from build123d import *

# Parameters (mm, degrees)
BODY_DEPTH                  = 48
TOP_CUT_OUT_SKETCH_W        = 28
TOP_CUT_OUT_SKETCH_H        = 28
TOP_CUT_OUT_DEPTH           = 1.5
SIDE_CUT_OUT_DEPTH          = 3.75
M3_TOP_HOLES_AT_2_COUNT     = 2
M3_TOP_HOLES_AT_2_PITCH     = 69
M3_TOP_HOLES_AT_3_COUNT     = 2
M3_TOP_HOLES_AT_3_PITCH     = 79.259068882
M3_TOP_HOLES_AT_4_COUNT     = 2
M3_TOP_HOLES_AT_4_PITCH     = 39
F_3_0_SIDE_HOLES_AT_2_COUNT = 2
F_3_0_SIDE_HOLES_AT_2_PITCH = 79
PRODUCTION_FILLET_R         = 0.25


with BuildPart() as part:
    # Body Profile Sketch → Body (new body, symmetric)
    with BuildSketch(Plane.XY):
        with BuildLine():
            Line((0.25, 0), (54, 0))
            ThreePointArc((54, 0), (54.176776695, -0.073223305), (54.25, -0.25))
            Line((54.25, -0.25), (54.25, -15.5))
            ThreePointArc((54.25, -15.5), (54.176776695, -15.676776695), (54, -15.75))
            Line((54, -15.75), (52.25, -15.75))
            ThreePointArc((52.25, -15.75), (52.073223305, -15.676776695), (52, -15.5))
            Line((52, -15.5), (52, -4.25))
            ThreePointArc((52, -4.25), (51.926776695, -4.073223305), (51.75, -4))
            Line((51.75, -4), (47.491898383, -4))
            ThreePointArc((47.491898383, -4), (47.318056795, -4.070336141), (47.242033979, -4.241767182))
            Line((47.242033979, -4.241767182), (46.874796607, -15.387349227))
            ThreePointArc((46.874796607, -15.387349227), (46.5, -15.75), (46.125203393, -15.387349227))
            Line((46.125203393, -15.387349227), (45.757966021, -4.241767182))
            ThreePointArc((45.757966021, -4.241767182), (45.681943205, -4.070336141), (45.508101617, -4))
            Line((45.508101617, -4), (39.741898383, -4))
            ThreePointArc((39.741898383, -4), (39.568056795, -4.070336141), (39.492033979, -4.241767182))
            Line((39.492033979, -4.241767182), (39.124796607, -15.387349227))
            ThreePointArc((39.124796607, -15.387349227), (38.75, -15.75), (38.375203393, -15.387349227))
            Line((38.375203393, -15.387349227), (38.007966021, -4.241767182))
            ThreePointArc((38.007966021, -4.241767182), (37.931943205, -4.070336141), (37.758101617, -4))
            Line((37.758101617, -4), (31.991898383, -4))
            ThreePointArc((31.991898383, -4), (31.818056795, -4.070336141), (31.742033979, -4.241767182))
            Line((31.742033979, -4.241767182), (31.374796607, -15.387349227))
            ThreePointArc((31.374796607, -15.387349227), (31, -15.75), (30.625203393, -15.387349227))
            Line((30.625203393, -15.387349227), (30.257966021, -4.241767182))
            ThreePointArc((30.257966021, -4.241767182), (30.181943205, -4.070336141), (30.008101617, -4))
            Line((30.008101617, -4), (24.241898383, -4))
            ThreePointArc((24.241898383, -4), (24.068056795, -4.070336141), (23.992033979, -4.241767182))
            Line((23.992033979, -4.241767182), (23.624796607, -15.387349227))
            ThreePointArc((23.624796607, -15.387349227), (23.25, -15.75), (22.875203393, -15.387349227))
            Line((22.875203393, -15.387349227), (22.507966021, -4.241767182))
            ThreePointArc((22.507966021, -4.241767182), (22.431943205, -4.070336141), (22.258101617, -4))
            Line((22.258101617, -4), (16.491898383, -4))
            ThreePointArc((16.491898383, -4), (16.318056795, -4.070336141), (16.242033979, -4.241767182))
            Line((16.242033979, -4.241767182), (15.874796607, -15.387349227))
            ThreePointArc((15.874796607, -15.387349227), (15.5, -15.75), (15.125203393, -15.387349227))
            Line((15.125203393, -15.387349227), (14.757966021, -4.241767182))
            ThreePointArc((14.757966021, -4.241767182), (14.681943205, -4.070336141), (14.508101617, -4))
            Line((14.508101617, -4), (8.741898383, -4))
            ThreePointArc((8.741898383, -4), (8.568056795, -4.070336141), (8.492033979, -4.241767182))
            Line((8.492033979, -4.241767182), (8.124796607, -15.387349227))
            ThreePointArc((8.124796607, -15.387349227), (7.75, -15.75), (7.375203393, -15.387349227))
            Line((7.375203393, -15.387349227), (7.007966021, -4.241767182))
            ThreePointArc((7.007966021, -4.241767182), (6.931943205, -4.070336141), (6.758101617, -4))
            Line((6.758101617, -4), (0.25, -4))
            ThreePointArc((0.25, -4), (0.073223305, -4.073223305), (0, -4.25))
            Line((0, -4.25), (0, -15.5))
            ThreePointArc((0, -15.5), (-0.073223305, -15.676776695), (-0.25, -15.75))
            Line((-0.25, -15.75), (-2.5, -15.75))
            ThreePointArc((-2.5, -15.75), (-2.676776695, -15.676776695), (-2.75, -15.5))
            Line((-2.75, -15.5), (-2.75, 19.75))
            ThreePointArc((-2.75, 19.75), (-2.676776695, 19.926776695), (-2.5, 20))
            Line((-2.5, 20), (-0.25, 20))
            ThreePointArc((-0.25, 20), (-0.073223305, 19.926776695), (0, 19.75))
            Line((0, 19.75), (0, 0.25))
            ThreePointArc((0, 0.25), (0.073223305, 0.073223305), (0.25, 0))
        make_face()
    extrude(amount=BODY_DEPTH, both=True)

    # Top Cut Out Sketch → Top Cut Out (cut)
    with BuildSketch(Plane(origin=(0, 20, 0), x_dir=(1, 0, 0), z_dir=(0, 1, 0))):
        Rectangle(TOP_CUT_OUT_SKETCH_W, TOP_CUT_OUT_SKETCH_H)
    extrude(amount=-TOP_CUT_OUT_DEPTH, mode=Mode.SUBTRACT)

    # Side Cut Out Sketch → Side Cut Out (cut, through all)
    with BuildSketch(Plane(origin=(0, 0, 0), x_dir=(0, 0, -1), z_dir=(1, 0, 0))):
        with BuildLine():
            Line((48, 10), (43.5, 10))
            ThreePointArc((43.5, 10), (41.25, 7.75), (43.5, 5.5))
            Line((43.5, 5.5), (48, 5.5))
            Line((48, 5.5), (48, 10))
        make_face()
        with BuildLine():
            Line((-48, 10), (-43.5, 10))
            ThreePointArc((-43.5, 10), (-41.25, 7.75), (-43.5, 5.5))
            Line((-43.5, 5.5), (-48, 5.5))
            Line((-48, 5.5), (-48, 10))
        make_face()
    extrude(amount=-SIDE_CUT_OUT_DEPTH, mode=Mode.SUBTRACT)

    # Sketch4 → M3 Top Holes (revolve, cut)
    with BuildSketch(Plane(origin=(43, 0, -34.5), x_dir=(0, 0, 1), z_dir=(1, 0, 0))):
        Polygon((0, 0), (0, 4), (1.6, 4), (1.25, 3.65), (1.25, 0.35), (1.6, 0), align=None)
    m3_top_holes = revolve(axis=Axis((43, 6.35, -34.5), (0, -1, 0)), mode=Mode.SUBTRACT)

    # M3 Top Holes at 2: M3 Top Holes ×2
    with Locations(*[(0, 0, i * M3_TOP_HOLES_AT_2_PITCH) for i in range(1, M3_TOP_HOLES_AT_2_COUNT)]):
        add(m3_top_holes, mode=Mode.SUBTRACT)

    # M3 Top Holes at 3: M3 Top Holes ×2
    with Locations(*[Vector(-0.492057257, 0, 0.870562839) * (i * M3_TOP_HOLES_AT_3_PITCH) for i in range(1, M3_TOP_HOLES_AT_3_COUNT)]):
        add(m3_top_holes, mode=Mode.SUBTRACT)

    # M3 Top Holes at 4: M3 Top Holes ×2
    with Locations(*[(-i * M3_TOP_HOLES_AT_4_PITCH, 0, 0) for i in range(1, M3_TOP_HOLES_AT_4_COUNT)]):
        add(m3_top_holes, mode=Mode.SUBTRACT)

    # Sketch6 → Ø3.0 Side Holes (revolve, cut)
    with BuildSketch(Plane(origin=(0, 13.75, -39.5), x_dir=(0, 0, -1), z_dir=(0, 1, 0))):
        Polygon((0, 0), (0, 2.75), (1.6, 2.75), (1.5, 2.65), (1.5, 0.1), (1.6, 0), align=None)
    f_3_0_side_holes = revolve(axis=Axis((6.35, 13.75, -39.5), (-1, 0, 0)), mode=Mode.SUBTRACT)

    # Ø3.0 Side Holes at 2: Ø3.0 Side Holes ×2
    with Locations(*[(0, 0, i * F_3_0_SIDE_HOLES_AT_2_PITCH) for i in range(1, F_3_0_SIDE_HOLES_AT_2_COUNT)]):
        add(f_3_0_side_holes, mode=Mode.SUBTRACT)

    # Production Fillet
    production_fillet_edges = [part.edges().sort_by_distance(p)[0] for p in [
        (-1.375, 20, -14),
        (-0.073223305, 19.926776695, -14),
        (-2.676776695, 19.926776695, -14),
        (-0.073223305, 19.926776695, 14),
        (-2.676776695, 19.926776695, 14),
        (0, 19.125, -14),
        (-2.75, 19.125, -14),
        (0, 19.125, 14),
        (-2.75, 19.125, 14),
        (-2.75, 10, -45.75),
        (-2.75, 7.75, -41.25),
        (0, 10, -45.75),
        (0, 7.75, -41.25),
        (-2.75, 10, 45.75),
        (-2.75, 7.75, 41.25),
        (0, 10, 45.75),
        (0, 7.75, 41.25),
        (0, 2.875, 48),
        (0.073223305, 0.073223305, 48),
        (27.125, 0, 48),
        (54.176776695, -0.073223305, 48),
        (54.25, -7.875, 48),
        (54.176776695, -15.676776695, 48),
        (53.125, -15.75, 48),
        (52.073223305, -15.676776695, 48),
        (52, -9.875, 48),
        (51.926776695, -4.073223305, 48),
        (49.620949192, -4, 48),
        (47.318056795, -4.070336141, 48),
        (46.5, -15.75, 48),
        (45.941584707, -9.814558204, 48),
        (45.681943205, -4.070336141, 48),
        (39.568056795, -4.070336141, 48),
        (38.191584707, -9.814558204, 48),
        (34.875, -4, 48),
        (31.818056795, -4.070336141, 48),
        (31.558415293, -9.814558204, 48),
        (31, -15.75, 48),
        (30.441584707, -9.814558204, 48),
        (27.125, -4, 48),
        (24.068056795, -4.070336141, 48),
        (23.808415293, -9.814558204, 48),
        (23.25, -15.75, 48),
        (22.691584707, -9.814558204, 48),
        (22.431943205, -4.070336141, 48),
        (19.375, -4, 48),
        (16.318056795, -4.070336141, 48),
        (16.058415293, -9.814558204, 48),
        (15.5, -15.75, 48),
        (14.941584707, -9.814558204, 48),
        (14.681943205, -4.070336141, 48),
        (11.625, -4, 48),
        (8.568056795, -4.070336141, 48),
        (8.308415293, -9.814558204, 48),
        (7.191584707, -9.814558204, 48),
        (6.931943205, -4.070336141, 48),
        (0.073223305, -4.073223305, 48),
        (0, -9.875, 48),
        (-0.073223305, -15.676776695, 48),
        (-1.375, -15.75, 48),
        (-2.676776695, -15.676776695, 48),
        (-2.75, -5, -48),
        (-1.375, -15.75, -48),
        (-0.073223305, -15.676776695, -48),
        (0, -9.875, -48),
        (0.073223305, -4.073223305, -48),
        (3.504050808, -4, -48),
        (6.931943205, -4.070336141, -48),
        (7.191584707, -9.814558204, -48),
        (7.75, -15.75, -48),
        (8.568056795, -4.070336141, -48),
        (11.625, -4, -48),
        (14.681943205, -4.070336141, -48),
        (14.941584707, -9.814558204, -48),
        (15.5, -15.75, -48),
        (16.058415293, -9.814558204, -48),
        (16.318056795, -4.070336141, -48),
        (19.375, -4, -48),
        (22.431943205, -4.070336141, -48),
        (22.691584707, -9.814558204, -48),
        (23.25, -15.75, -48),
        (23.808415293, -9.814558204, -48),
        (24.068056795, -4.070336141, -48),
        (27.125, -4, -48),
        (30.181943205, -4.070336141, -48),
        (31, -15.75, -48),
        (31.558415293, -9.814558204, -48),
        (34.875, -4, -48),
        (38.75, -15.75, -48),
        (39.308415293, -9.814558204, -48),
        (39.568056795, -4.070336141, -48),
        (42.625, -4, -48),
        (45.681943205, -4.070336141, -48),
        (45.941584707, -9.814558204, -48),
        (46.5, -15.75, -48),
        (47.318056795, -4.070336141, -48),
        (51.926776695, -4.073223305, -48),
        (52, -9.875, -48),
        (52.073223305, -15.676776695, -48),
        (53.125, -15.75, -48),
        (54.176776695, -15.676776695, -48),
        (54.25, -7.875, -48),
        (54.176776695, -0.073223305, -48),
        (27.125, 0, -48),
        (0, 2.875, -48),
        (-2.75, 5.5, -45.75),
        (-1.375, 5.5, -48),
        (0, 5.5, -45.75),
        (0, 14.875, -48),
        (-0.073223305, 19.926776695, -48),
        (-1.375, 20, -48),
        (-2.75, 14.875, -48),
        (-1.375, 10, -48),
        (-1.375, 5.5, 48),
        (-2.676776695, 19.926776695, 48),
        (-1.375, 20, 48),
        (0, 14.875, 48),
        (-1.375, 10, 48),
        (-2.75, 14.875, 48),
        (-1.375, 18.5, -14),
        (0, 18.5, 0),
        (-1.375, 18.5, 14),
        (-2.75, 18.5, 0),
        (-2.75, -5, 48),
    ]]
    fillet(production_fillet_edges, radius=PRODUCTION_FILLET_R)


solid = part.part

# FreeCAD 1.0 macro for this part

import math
import FreeCAD as App
import Part
import Sketcher


def edges_at(feature, points):
    """Names of the edges that pass closest to the given points."""
    edges = feature.Shape.Edges
    near = lambda p: min(range(len(edges)), key=lambda i: edges[i].distToShape(Part.Vertex(*p))[0])
    return sorted({f"Edge{near(p) + 1}" for p in points})


def add_polygon(sketch, points):
    """Adds a closed chain of lines whose ends are joined by coincident constraints."""
    first, n = sketch.GeometryCount, len(points)
    for a, b in zip(points, points[1:] + points[:1]):
        sketch.addGeometry(Part.LineSegment(App.Vector(*a, 0), App.Vector(*b, 0)), False)
    for i in range(n):
        sketch.addConstraint(Sketcher.Constraint("Coincident", first + i, 2, first + (i + 1) % n, 1))

doc = App.newDocument("Part")
body = doc.addObject("PartDesign::Body", "Body")

sketch1 = body.newObject("Sketcher::SketchObject", "Sketch")
sketch1.AttachmentSupport = (doc.getObject("XY_Plane"), [""])
sketch1.MapMode = "FlatFace"
sketch1.addGeometry(Part.LineSegment(App.Vector(54, 0, 0), App.Vector(0.25, 0, 0)), False)
sketch1.addGeometry(Part.ArcOfCircle(Part.Circle(App.Vector(0.25, 0.25, 0), App.Vector(0, 0, 1), 0.25), math.radians(-180), math.radians(-90)), False)
sketch1.addGeometry(Part.LineSegment(App.Vector(0, 0.25, 0), App.Vector(0, 19.75, 0)), False)
sketch1.addGeometry(Part.ArcOfCircle(Part.Circle(App.Vector(-0.25, 19.75, 0), App.Vector(0, 0, 1), 0.25), math.radians(0), math.radians(90)), False)
sketch1.addGeometry(Part.LineSegment(App.Vector(-0.25, 20, 0), App.Vector(-2.5, 20, 0)), False)
sketch1.addGeometry(Part.ArcOfCircle(Part.Circle(App.Vector(-2.5, 19.75, 0), App.Vector(0, 0, 1), 0.25), math.radians(90), math.radians(180)), False)
sketch1.addGeometry(Part.LineSegment(App.Vector(-2.75, 19.75, 0), App.Vector(-2.75, -15.5, 0)), False)
sketch1.addGeometry(Part.ArcOfCircle(Part.Circle(App.Vector(-2.5, -15.5, 0), App.Vector(0, 0, 1), 0.25), math.radians(-180), math.radians(-90)), False)
sketch1.addGeometry(Part.LineSegment(App.Vector(-2.5, -15.75, 0), App.Vector(-0.25, -15.75, 0)), False)
sketch1.addGeometry(Part.ArcOfCircle(Part.Circle(App.Vector(-0.25, -15.5, 0), App.Vector(0, 0, 1), 0.25), math.radians(-90), math.radians(0)), False)
sketch1.addGeometry(Part.LineSegment(App.Vector(0, -15.5, 0), App.Vector(0, -4.25, 0)), False)
sketch1.addGeometry(Part.ArcOfCircle(Part.Circle(App.Vector(0.25, -4.25, 0), App.Vector(0, 0, 1), 0.25), math.radians(90), math.radians(180)), False)
sketch1.addGeometry(Part.LineSegment(App.Vector(0.25, -4, 0), App.Vector(6.76, -4, 0)), False)
sketch1.addGeometry(Part.ArcOfCircle(Part.Circle(App.Vector(6.76, -4.25, 0), App.Vector(0, 0, 1), 0.25), math.radians(2), math.radians(90)), False)
sketch1.addGeometry(Part.LineSegment(App.Vector(7.01, -4.24, 0), App.Vector(7.38, -15.39, 0)), False)
sketch1.addGeometry(Part.ArcOfCircle(Part.Circle(App.Vector(7.75, -15.38, 0), App.Vector(0, 0, 1), 0.38), math.radians(-178), math.radians(-2)), False)
sketch1.addGeometry(Part.LineSegment(App.Vector(8.12, -15.39, 0), App.Vector(8.49, -4.24, 0)), False)
sketch1.addGeometry(Part.ArcOfCircle(Part.Circle(App.Vector(8.74, -4.25, 0), App.Vector(0, 0, 1), 0.25), math.radians(90), math.radians(178)), False)
sketch1.addGeometry(Part.LineSegment(App.Vector(8.74, -4, 0), App.Vector(14.51, -4, 0)), False)
sketch1.addGeometry(Part.ArcOfCircle(Part.Circle(App.Vector(14.51, -4.25, 0), App.Vector(0, 0, 1), 0.25), math.radians(2), math.radians(90)), False)
sketch1.addGeometry(Part.LineSegment(App.Vector(14.76, -4.24, 0), App.Vector(15.13, -15.39, 0)), False)
sketch1.addGeometry(Part.ArcOfCircle(Part.Circle(App.Vector(15.5, -15.38, 0), App.Vector(0, 0, 1), 0.38), math.radians(-178), math.radians(-2)), False)
sketch1.addGeometry(Part.LineSegment(App.Vector(15.87, -15.39, 0), App.Vector(16.24, -4.24, 0)), False)
sketch1.addGeometry(Part.ArcOfCircle(Part.Circle(App.Vector(16.49, -4.25, 0), App.Vector(0, 0, 1), 0.25), math.radians(90), math.radians(178)), False)
sketch1.addGeometry(Part.LineSegment(App.Vector(16.49, -4, 0), App.Vector(22.26, -4, 0)), False)
sketch1.addGeometry(Part.ArcOfCircle(Part.Circle(App.Vector(22.26, -4.25, 0), App.Vector(0, 0, 1), 0.25), math.radians(2), math.radians(90)), False)
sketch1.addGeometry(Part.LineSegment(App.Vector(22.51, -4.24, 0), App.Vector(22.88, -15.39, 0)), False)
sketch1.addGeometry(Part.ArcOfCircle(Part.Circle(App.Vector(23.25, -15.38, 0), App.Vector(0, 0, 1), 0.38), math.radians(-178), math.radians(-2)), False)
sketch1.addGeometry(Part.LineSegment(App.Vector(23.62, -15.39, 0), App.Vector(23.99, -4.24, 0)), False)
sketch1.addGeometry(Part.ArcOfCircle(Part.Circle(App.Vector(24.24, -4.25, 0), App.Vector(0, 0, 1), 0.25), math.radians(90), math.radians(178)), False)
sketch1.addGeometry(Part.LineSegment(App.Vector(24.24, -4, 0), App.Vector(30.01, -4, 0)), False)
sketch1.addGeometry(Part.ArcOfCircle(Part.Circle(App.Vector(30.01, -4.25, 0), App.Vector(0, 0, 1), 0.25), math.radians(2), math.radians(90)), False)
sketch1.addGeometry(Part.LineSegment(App.Vector(30.26, -4.24, 0), App.Vector(30.63, -15.39, 0)), False)
sketch1.addGeometry(Part.ArcOfCircle(Part.Circle(App.Vector(31, -15.38, 0), App.Vector(0, 0, 1), 0.38), math.radians(-178), math.radians(-2)), False)
sketch1.addGeometry(Part.LineSegment(App.Vector(31.37, -15.39, 0), App.Vector(31.74, -4.24, 0)), False)
sketch1.addGeometry(Part.ArcOfCircle(Part.Circle(App.Vector(31.99, -4.25, 0), App.Vector(0, 0, 1), 0.25), math.radians(90), math.radians(178)), False)
sketch1.addGeometry(Part.LineSegment(App.Vector(31.99, -4, 0), App.Vector(37.76, -4, 0)), False)
sketch1.addGeometry(Part.ArcOfCircle(Part.Circle(App.Vector(37.76, -4.25, 0), App.Vector(0, 0, 1), 0.25), math.radians(2), math.radians(90)), False)
sketch1.addGeometry(Part.LineSegment(App.Vector(38.01, -4.24, 0), App.Vector(38.38, -15.39, 0)), False)
sketch1.addGeometry(Part.ArcOfCircle(Part.Circle(App.Vector(38.75, -15.38, 0), App.Vector(0, 0, 1), 0.38), math.radians(-178), math.radians(-2)), False)
sketch1.addGeometry(Part.LineSegment(App.Vector(39.12, -15.39, 0), App.Vector(39.49, -4.24, 0)), False)
sketch1.addGeometry(Part.ArcOfCircle(Part.Circle(App.Vector(39.74, -4.25, 0), App.Vector(0, 0, 1), 0.25), math.radians(90), math.radians(178)), False)
sketch1.addGeometry(Part.LineSegment(App.Vector(39.74, -4, 0), App.Vector(45.51, -4, 0)), False)
sketch1.addGeometry(Part.ArcOfCircle(Part.Circle(App.Vector(45.51, -4.25, 0), App.Vector(0, 0, 1), 0.25), math.radians(2), math.radians(90)), False)
sketch1.addGeometry(Part.LineSegment(App.Vector(45.76, -4.24, 0), App.Vector(46.13, -15.39, 0)), False)
sketch1.addGeometry(Part.ArcOfCircle(Part.Circle(App.Vector(46.5, -15.38, 0), App.Vector(0, 0, 1), 0.38), math.radians(-178), math.radians(-2)), False)
sketch1.addGeometry(Part.LineSegment(App.Vector(46.87, -15.39, 0), App.Vector(47.24, -4.24, 0)), False)
sketch1.addGeometry(Part.ArcOfCircle(Part.Circle(App.Vector(47.49, -4.25, 0), App.Vector(0, 0, 1), 0.25), math.radians(90), math.radians(178)), False)
sketch1.addGeometry(Part.LineSegment(App.Vector(47.49, -4, 0), App.Vector(51.75, -4, 0)), False)
sketch1.addGeometry(Part.ArcOfCircle(Part.Circle(App.Vector(51.75, -4.25, 0), App.Vector(0, 0, 1), 0.25), math.radians(0), math.radians(90)), False)
sketch1.addGeometry(Part.LineSegment(App.Vector(52, -4.25, 0), App.Vector(52, -15.5, 0)), False)
sketch1.addGeometry(Part.ArcOfCircle(Part.Circle(App.Vector(52.25, -15.5, 0), App.Vector(0, 0, 1), 0.25), math.radians(-180), math.radians(-90)), False)
sketch1.addGeometry(Part.LineSegment(App.Vector(52.25, -15.75, 0), App.Vector(54, -15.75, 0)), False)
sketch1.addGeometry(Part.ArcOfCircle(Part.Circle(App.Vector(54, -15.5, 0), App.Vector(0, 0, 1), 0.25), math.radians(-90), math.radians(0)), False)
sketch1.addGeometry(Part.LineSegment(App.Vector(54.25, -15.5, 0), App.Vector(54.25, -0.25, 0)), False)
sketch1.addGeometry(Part.ArcOfCircle(Part.Circle(App.Vector(54, -0.25, 0), App.Vector(0, 0, 1), 0.25), math.radians(0), math.radians(90)), False)
sketch1.addConstraint(Sketcher.Constraint("Tangent", 0, 2, 1, 2))
sketch1.addConstraint(Sketcher.Constraint("Tangent", 1, 1, 2, 1))
sketch1.addConstraint(Sketcher.Constraint("Tangent", 2, 2, 3, 1))
sketch1.addConstraint(Sketcher.Constraint("Tangent", 3, 2, 4, 1))
sketch1.addConstraint(Sketcher.Constraint("Tangent", 4, 2, 5, 1))
sketch1.addConstraint(Sketcher.Constraint("Tangent", 5, 2, 6, 1))
sketch1.addConstraint(Sketcher.Constraint("Tangent", 6, 2, 7, 1))
sketch1.addConstraint(Sketcher.Constraint("Tangent", 7, 2, 8, 1))
sketch1.addConstraint(Sketcher.Constraint("Tangent", 8, 2, 9, 1))
sketch1.addConstraint(Sketcher.Constraint("Tangent", 9, 2, 10, 1))
sketch1.addConstraint(Sketcher.Constraint("Tangent", 10, 2, 11, 2))
sketch1.addConstraint(Sketcher.Constraint("Tangent", 11, 1, 12, 1))
sketch1.addConstraint(Sketcher.Constraint("Tangent", 12, 2, 13, 2))
sketch1.addConstraint(Sketcher.Constraint("Tangent", 13, 1, 14, 1))
sketch1.addConstraint(Sketcher.Constraint("Tangent", 14, 2, 15, 1))
sketch1.addConstraint(Sketcher.Constraint("Tangent", 15, 2, 16, 1))
sketch1.addConstraint(Sketcher.Constraint("Tangent", 16, 2, 17, 2))
sketch1.addConstraint(Sketcher.Constraint("Tangent", 17, 1, 18, 1))
sketch1.addConstraint(Sketcher.Constraint("Tangent", 18, 2, 19, 2))
sketch1.addConstraint(Sketcher.Constraint("Tangent", 19, 1, 20, 1))
sketch1.addConstraint(Sketcher.Constraint("Tangent", 20, 2, 21, 1))
sketch1.addConstraint(Sketcher.Constraint("Tangent", 21, 2, 22, 1))
sketch1.addConstraint(Sketcher.Constraint("Tangent", 22, 2, 23, 2))
sketch1.addConstraint(Sketcher.Constraint("Tangent", 23, 1, 24, 1))
sketch1.addConstraint(Sketcher.Constraint("Tangent", 24, 2, 25, 2))
sketch1.addConstraint(Sketcher.Constraint("Tangent", 25, 1, 26, 1))
sketch1.addConstraint(Sketcher.Constraint("Tangent", 26, 2, 27, 1))
sketch1.addConstraint(Sketcher.Constraint("Tangent", 27, 2, 28, 1))
sketch1.addConstraint(Sketcher.Constraint("Tangent", 28, 2, 29, 2))
sketch1.addConstraint(Sketcher.Constraint("Tangent", 29, 1, 30, 1))
sketch1.addConstraint(Sketcher.Constraint("Tangent", 30, 2, 31, 2))
sketch1.addConstraint(Sketcher.Constraint("Tangent", 31, 1, 32, 1))
sketch1.addConstraint(Sketcher.Constraint("Tangent", 32, 2, 33, 1))
sketch1.addConstraint(Sketcher.Constraint("Tangent", 33, 2, 34, 1))
sketch1.addConstraint(Sketcher.Constraint("Tangent", 34, 2, 35, 2))
sketch1.addConstraint(Sketcher.Constraint("Tangent", 35, 1, 36, 1))
sketch1.addConstraint(Sketcher.Constraint("Tangent", 36, 2, 37, 2))
sketch1.addConstraint(Sketcher.Constraint("Tangent", 37, 1, 38, 1))
sketch1.addConstraint(Sketcher.Constraint("Tangent", 38, 2, 39, 1))
sketch1.addConstraint(Sketcher.Constraint("Tangent", 39, 2, 40, 1))
sketch1.addConstraint(Sketcher.Constraint("Tangent", 40, 2, 41, 2))
sketch1.addConstraint(Sketcher.Constraint("Tangent", 41, 1, 42, 1))
sketch1.addConstraint(Sketcher.Constraint("Tangent", 42, 2, 43, 2))
sketch1.addConstraint(Sketcher.Constraint("Tangent", 43, 1, 44, 1))
sketch1.addConstraint(Sketcher.Constraint("Tangent", 44, 2, 45, 1))
sketch1.addConstraint(Sketcher.Constraint("Tangent", 45, 2, 46, 1))
sketch1.addConstraint(Sketcher.Constraint("Tangent", 46, 2, 47, 2))
sketch1.addConstraint(Sketcher.Constraint("Tangent", 47, 1, 48, 1))
sketch1.addConstraint(Sketcher.Constraint("Tangent", 48, 2, 49, 2))
sketch1.addConstraint(Sketcher.Constraint("Tangent", 49, 1, 50, 1))
sketch1.addConstraint(Sketcher.Constraint("Tangent", 50, 2, 51, 1))
sketch1.addConstraint(Sketcher.Constraint("Tangent", 51, 2, 52, 1))
sketch1.addConstraint(Sketcher.Constraint("Tangent", 52, 2, 53, 1))
sketch1.addConstraint(Sketcher.Constraint("Tangent", 53, 2, 54, 1))
sketch1.addConstraint(Sketcher.Constraint("Tangent", 54, 2, 55, 1))
sketch1.addConstraint(Sketcher.Constraint("Tangent", 55, 2, 0, 1))
sketch1.addConstraint(Sketcher.Constraint("Horizontal", 0))
sketch1.addConstraint(Sketcher.Constraint("Vertical", 2))
sketch1.addConstraint(Sketcher.Constraint("Horizontal", 4))
sketch1.addConstraint(Sketcher.Constraint("Vertical", 6))
sketch1.addConstraint(Sketcher.Constraint("Horizontal", 8))
sketch1.addConstraint(Sketcher.Constraint("Vertical", 10))
sketch1.addConstraint(Sketcher.Constraint("Horizontal", 12))
sketch1.addConstraint(Sketcher.Constraint("Horizontal", 18))
sketch1.addConstraint(Sketcher.Constraint("Horizontal", 24))
sketch1.addConstraint(Sketcher.Constraint("Horizontal", 30))
sketch1.addConstraint(Sketcher.Constraint("Horizontal", 36))
sketch1.addConstraint(Sketcher.Constraint("Horizontal", 42))
sketch1.addConstraint(Sketcher.Constraint("Horizontal", 48))
sketch1.addConstraint(Sketcher.Constraint("Vertical", 50))
sketch1.addConstraint(Sketcher.Constraint("Horizontal", 52))
sketch1.addConstraint(Sketcher.Constraint("Vertical", 54))
sketch1.addConstraint(Sketcher.Constraint("Equal", 1, 3))
sketch1.addConstraint(Sketcher.Constraint("Equal", 3, 5))
sketch1.addConstraint(Sketcher.Constraint("Equal", 5, 7))
sketch1.addConstraint(Sketcher.Constraint("Equal", 7, 9))
sketch1.addConstraint(Sketcher.Constraint("Equal", 9, 11))
sketch1.addConstraint(Sketcher.Constraint("Equal", 11, 13))
sketch1.addConstraint(Sketcher.Constraint("Equal", 13, 17))
sketch1.addConstraint(Sketcher.Constraint("Equal", 17, 19))
sketch1.addConstraint(Sketcher.Constraint("Equal", 15, 21))
sketch1.addConstraint(Sketcher.Constraint("Equal", 19, 23))
sketch1.addConstraint(Sketcher.Constraint("Equal", 23, 25))
sketch1.addConstraint(Sketcher.Constraint("Equal", 21, 27))
sketch1.addConstraint(Sketcher.Constraint("Equal", 25, 29))
sketch1.addConstraint(Sketcher.Constraint("Equal", 29, 31))
sketch1.addConstraint(Sketcher.Constraint("Equal", 27, 33))
sketch1.addConstraint(Sketcher.Constraint("Equal", 31, 35))
sketch1.addConstraint(Sketcher.Constraint("Equal", 35, 37))
sketch1.addConstraint(Sketcher.Constraint("Equal", 33, 39))
sketch1.addConstraint(Sketcher.Constraint("Equal", 37, 41))
sketch1.addConstraint(Sketcher.Constraint("Equal", 41, 43))
sketch1.addConstraint(Sketcher.Constraint("Equal", 39, 45))
sketch1.addConstraint(Sketcher.Constraint("Equal", 43, 47))
sketch1.addConstraint(Sketcher.Constraint("Equal", 47, 49))
sketch1.addConstraint(Sketcher.Constraint("Equal", 49, 51))
sketch1.addConstraint(Sketcher.Constraint("Equal", 51, 53))
sketch1.addConstraint(Sketcher.Constraint("Equal", 53, 55))
sketch1.addConstraint(Sketcher.Constraint("PointOnObject", 0, 2, -1))
sketch1.addConstraint(Sketcher.Constraint("PointOnObject", 1, 1, -2))
sketch1.addConstraint(Sketcher.Constraint("PointOnObject", 9, 2, -2))
sketch1.addConstraint(Sketcher.Constraint("Parallel", 14, 20))
sketch1.addConstraint(Sketcher.Constraint("Parallel", 16, 22))
sketch1.addConstraint(Sketcher.Constraint("Parallel", 20, 26))
sketch1.addConstraint(Sketcher.Constraint("Parallel", 22, 28))
sketch1.addConstraint(Sketcher.Constraint("Parallel", 26, 32))
sketch1.addConstraint(Sketcher.Constraint("Parallel", 28, 34))
sketch1.addConstraint(Sketcher.Constraint("Parallel", 32, 38))
sketch1.addConstraint(Sketcher.Constraint("Parallel", 34, 40))
sketch1.addConstraint(Sketcher.Constraint("Parallel", 38, 44))
sketch1.addConstraint(Sketcher.Constraint("Parallel", 40, 46))
sketch1.addConstraint(Sketcher.Constraint("Horizontal", 13, 3, 17, 3))
sketch1.addConstraint(Sketcher.Constraint("Horizontal", 15, 3, 21, 3))
sketch1.addConstraint(Sketcher.Constraint("Horizontal", 19, 3, 23, 3))
sketch1.addConstraint(Sketcher.Constraint("Horizontal", 21, 3, 27, 3))
sketch1.addConstraint(Sketcher.Constraint("Horizontal", 25, 3, 29, 3))
sketch1.addConstraint(Sketcher.Constraint("Horizontal", 27, 3, 33, 3))
sketch1.addConstraint(Sketcher.Constraint("Horizontal", 31, 3, 35, 3))
sketch1.addConstraint(Sketcher.Constraint("Horizontal", 33, 3, 39, 3))
sketch1.addConstraint(Sketcher.Constraint("Horizontal", 37, 3, 41, 3))
sketch1.addConstraint(Sketcher.Constraint("Horizontal", 39, 3, 45, 3))
sketch1.addConstraint(Sketcher.Constraint("Horizontal", 43, 3, 47, 3))
sketch1.addConstraint(Sketcher.Constraint("Horizontal", 9, 3, 51, 3))
sketch1.addConstraint(Sketcher.Constraint("Horizontal", 14, 2, 15, 2))
sketch1.addConstraint(Sketcher.Constraint("Equal", 18, 24))
sketch1.addConstraint(Sketcher.Constraint("Equal", 24, 30))
sketch1.addConstraint(Sketcher.Constraint("Equal", 30, 36))
sketch1.addConstraint(Sketcher.Constraint("Equal", 36, 42))
sketch1.addConstraint(Sketcher.Constraint("Radius", 1, 0.25))
sketch1.addConstraint(Sketcher.Constraint("DistanceY", 2, 1, 2, 2, 19.5))
sketch1.addConstraint(Sketcher.Constraint("DistanceX", -1, 1, 33, 3, 31.0))
sketch1.addConstraint(Sketcher.Constraint("DistanceX", -1, 1, 53, 3, 54.0))
sketch1.addConstraint(Sketcher.Constraint("DistanceY", 11, 1, -1, 1, 4.0))
sketch1.addConstraint(Sketcher.Constraint("DistanceX", -1, 1, 49, 1, 52.0))
sketch1.addConstraint(Sketcher.Constraint("Radius", 15, 0.375))
sketch1.addConstraint(Sketcher.Constraint("DistanceX", 4, 2, 4, 1, 2.25))
sketch1.addConstraint(Sketcher.Constraint("DistanceY", 6, 2, 6, 1, 35.25))
sketch1.addConstraint(Sketcher.Constraint("DistanceX", -1, 1, 21, 3, 15.5))
sketch1.addConstraint(Sketcher.Constraint("DistanceX", 12, 1, 12, 2, 6.508102))
sketch1.addConstraint(Sketcher.Constraint("DistanceY", 15, 3, -1, 1, 15.375))
pad1 = body.newObject("PartDesign::Pad", "Pad")
pad1.Profile = sketch1
pad1.Length = 96
pad1.Midplane = True

sketch2 = body.newObject("Sketcher::SketchObject", "Sketch001")
sketch2.AttachmentSupport = (doc.getObject("XZ_Plane"), [""])
sketch2.MapMode = "FlatFace"
sketch2.AttachmentOffset = App.Placement(App.Vector(0, 0, -20), App.Rotation())
add_polygon(sketch2, [(-14, -14), (-14, 14), (14, 14), (14, -14)])
sketch2.addConstraint(Sketcher.Constraint("Vertical", 0))
sketch2.addConstraint(Sketcher.Constraint("Horizontal", 1))
sketch2.addConstraint(Sketcher.Constraint("Vertical", 2))
sketch2.addConstraint(Sketcher.Constraint("Horizontal", 3))
sketch2.addConstraint(Sketcher.Constraint("Symmetric", 0, 2, 2, 2, -1, 1))
sketch2.addConstraint(Sketcher.Constraint("Equal", 3, 0))
sketch2.addConstraint(Sketcher.Constraint("DistanceX", 1, 1, 1, 2, 28.0))
pocket1 = body.newObject("PartDesign::Pocket", "Pocket")
pocket1.Profile = sketch2
pocket1.Length = 1.5
pocket1.Reversed = True

sketch3 = body.newObject("Sketcher::SketchObject", "Sketch002")
sketch3.AttachmentSupport = (doc.getObject("YZ_Plane"), [""])
sketch3.MapMode = "FlatFace"
sketch3.addGeometry(Part.LineSegment(App.Vector(10, -48, 0), App.Vector(10, -43.5, 0)), False)
sketch3.addGeometry(Part.ArcOfCircle(Part.Circle(App.Vector(7.8, -43.5, 0), App.Vector(0, 0, 1), 2.2), math.radians(0), math.radians(180)), False)
sketch3.addGeometry(Part.LineSegment(App.Vector(5.5, -43.5, 0), App.Vector(5.5, -48, 0)), False)
sketch3.addGeometry(Part.LineSegment(App.Vector(5.5, -48, 0), App.Vector(10, -48, 0)), False)
sketch3.addGeometry(Part.LineSegment(App.Vector(10, 43.5, 0), App.Vector(10, 48, 0)), False)
sketch3.addGeometry(Part.LineSegment(App.Vector(10, 48, 0), App.Vector(5.5, 48, 0)), False)
sketch3.addGeometry(Part.LineSegment(App.Vector(5.5, 48, 0), App.Vector(5.5, 43.5, 0)), False)
sketch3.addGeometry(Part.ArcOfCircle(Part.Circle(App.Vector(7.8, 43.5, 0), App.Vector(0, 0, 1), 2.2), math.radians(180), math.radians(360)), False)
sketch3.addConstraint(Sketcher.Constraint("Tangent", 0, 2, 1, 1))
sketch3.addConstraint(Sketcher.Constraint("Tangent", 1, 2, 2, 1))
sketch3.addConstraint(Sketcher.Constraint("Coincident", 2, 2, 3, 1))
sketch3.addConstraint(Sketcher.Constraint("Coincident", 3, 2, 0, 1))
sketch3.addConstraint(Sketcher.Constraint("Coincident", 4, 2, 5, 1))
sketch3.addConstraint(Sketcher.Constraint("Coincident", 5, 2, 6, 1))
sketch3.addConstraint(Sketcher.Constraint("Tangent", 6, 2, 7, 1))
sketch3.addConstraint(Sketcher.Constraint("Tangent", 7, 2, 4, 1))
sketch3.addConstraint(Sketcher.Constraint("Vertical", 0))
sketch3.addConstraint(Sketcher.Constraint("Vertical", 2))
sketch3.addConstraint(Sketcher.Constraint("Horizontal", 3))
sketch3.addConstraint(Sketcher.Constraint("Vertical", 4))
sketch3.addConstraint(Sketcher.Constraint("Horizontal", 5))
sketch3.addConstraint(Sketcher.Constraint("Vertical", 6))
sketch3.addConstraint(Sketcher.Constraint("Equal", 1, 7))
sketch3.addConstraint(Sketcher.Constraint("Symmetric", 1, 3, 7, 3, -1))
sketch3.addConstraint(Sketcher.Constraint("Equal", 5, 0))
sketch3.addConstraint(Sketcher.Constraint("Equal", 2, 4))
sketch3.addConstraint(Sketcher.Constraint("Radius", 1, 2.25))
sketch3.addConstraint(Sketcher.Constraint("DistanceX", -1, 1, 0, 2, 10.0))
sketch3.addConstraint(Sketcher.Constraint("DistanceY", 2, 2, -1, 1, 48.0))
pocket2 = body.newObject("PartDesign::Pocket", "Pocket001")
pocket2.Profile = sketch3
pocket2.Type = "ThroughAll"

sketch4 = body.newObject("Sketcher::SketchObject", "Sketch003")
sketch4.AttachmentSupport = (doc.getObject("YZ_Plane"), [""])
sketch4.MapMode = "FlatFace"
sketch4.AttachmentOffset = App.Placement(App.Vector(0, 0, 43), App.Rotation())
add_polygon(sketch4, [(-4, -34.5), (0, -34.5), (0, -32.9), (-0.35, -33.25), (-3.65, -33.25), (-4, -32.9)])
sketch4.addGeometry(Part.LineSegment(App.Vector(0, -34.5, 0), App.Vector(-4, -34.5, 0)), True)
sketch4.addConstraint(Sketcher.Constraint("Horizontal", 0))
sketch4.addConstraint(Sketcher.Constraint("Vertical", 1))
sketch4.addConstraint(Sketcher.Constraint("Horizontal", 3))
sketch4.addConstraint(Sketcher.Constraint("Vertical", 5))
sketch4.addConstraint(Sketcher.Constraint("Horizontal", 6))
sketch4.addConstraint(Sketcher.Constraint("Coincident", 6, 1, 0, 2))
sketch4.addConstraint(Sketcher.Constraint("PointOnObject", 0, 2, -2))
sketch4.addConstraint(Sketcher.Constraint("Perpendicular", 2, 4))
sketch4.addConstraint(Sketcher.Constraint("Horizontal", 1, 2, 4, 2))
sketch4.addConstraint(Sketcher.Constraint("Vertical", 4, 2, 6, 2))
sketch4.addConstraint(Sketcher.Constraint("Equal", 2, 4))
sketch4.addConstraint(Sketcher.Constraint("DistanceX", 0, 1, 0, 2, 4.0))
sketch4.addConstraint(Sketcher.Constraint("DistanceX", 3, 2, 3, 1, 3.3))
sketch4.addConstraint(Sketcher.Constraint("DistanceY", 1, 1, 1, 2, 1.6))
sketch4.addConstraint(Sketcher.Constraint("DistanceY", 0, 2, -1, 1, 34.5))
groove = body.newObject("PartDesign::Groove", "Groove")
groove.Profile = sketch4
groove.ReferenceAxis = (sketch4, ["Axis0"])
groove.Angle = 360
doc.recompute()

linearpattern = body.newObject("PartDesign::LinearPattern", "LinearPattern")
linearpattern.Originals = [groove]
linearpattern.Direction = (doc.getObject("Z_Axis"), [""])
linearpattern.Mode = "offset"
linearpattern.Offset = 69
linearpattern.Occurrences = 2
body.Tip = linearpattern
doc.recompute()

datumline = body.newObject("PartDesign::Line", "DatumLine")
datumline.Placement = App.Placement(App.Vector(0, 0, 0), App.Rotation(App.Vector(0, 0, 1), App.Vector(-0.492057257, 0, 0.870562839)))
linearpattern2 = body.newObject("PartDesign::LinearPattern", "LinearPattern001")
linearpattern2.Originals = [groove]
linearpattern2.Direction = (datumline, [""])
linearpattern2.Mode = "offset"
linearpattern2.Offset = 79.259069
linearpattern2.Occurrences = 2
body.Tip = linearpattern2
doc.recompute()

linearpattern3 = body.newObject("PartDesign::LinearPattern", "LinearPattern002")
linearpattern3.Originals = [groove]
linearpattern3.Direction = (doc.getObject("X_Axis"), [""])
linearpattern3.Mode = "offset"
linearpattern3.Offset = 39
linearpattern3.Occurrences = 2
linearpattern3.Reversed = True
body.Tip = linearpattern3

sketch5 = body.newObject("Sketcher::SketchObject", "Sketch004")
sketch5.AttachmentSupport = (doc.getObject("XZ_Plane"), [""])
sketch5.MapMode = "FlatFace"
sketch5.AttachmentOffset = App.Placement(App.Vector(0, 0, -13.75), App.Rotation())
add_polygon(sketch5, [(-2.75, -39.5), (0, -39.5), (0, -41.1), (-0.1, -41), (-2.65, -41), (-2.75, -41.1)])
sketch5.addGeometry(Part.LineSegment(App.Vector(0, -39.5, 0), App.Vector(-2.75, -39.5, 0)), True)
sketch5.addConstraint(Sketcher.Constraint("Horizontal", 0))
sketch5.addConstraint(Sketcher.Constraint("Vertical", 1))
sketch5.addConstraint(Sketcher.Constraint("Horizontal", 3))
sketch5.addConstraint(Sketcher.Constraint("Vertical", 5))
sketch5.addConstraint(Sketcher.Constraint("Horizontal", 6))
sketch5.addConstraint(Sketcher.Constraint("Coincident", 6, 1, 0, 2))
sketch5.addConstraint(Sketcher.Constraint("PointOnObject", 0, 2, -2))
sketch5.addConstraint(Sketcher.Constraint("Perpendicular", 2, 4))
sketch5.addConstraint(Sketcher.Constraint("Horizontal", 1, 2, 4, 2))
sketch5.addConstraint(Sketcher.Constraint("Vertical", 4, 2, 6, 2))
sketch5.addConstraint(Sketcher.Constraint("Equal", 2, 4))
sketch5.addConstraint(Sketcher.Constraint("DistanceY", 1, 2, 1, 1, 1.6))
sketch5.addConstraint(Sketcher.Constraint("DistanceY", 2, 2, -1, 1, 41.0))
sketch5.addConstraint(Sketcher.Constraint("DistanceX", 0, 1, 0, 2, 2.75))
sketch5.addConstraint(Sketcher.Constraint("DistanceX", 3, 2, 3, 1, 2.55))
groove2 = body.newObject("PartDesign::Groove", "Groove001")
groove2.Profile = sketch5
groove2.ReferenceAxis = (sketch5, ["Axis0"])
groove2.Angle = 360
doc.recompute()

linearpattern4 = body.newObject("PartDesign::LinearPattern", "LinearPattern003")
linearpattern4.Originals = [groove2]
linearpattern4.Direction = (doc.getObject("Z_Axis"), [""])
linearpattern4.Mode = "offset"
linearpattern4.Offset = 79
linearpattern4.Occurrences = 2
body.Tip = linearpattern4
doc.recompute()

fillet = body.newObject("PartDesign::Fillet", "Fillet")
fillet.Base = (linearpattern4, edges_at(linearpattern4, [
    (-1.375, 20, -14),
    (-0.073, 19.927, -14),
    (-2.677, 19.927, -14),
    (-0.073, 19.927, 14),
    (-2.677, 19.927, 14),
    (0, 19.125, -14),
    (-2.75, 19.125, -14),
    (0, 19.125, 14),
    (-2.75, 19.125, 14),
    (-2.75, 10, -45.75),
    (-2.75, 7.75, -41.25),
    (0, 10, -45.75),
    (0, 7.75, -41.25),
    (-2.75, 10, 45.75),
    (-2.75, 7.75, 41.25),
    (0, 10, 45.75),
    (0, 7.75, 41.25),
    (0, 2.875, 48),
    (0.073, 0.073, 48),
    (27.125, 0, 48),
    (54.177, -0.073, 48),
    (54.25, -7.875, 48),
    (54.177, -15.677, 48),
    (53.125, -15.75, 48),
    (52.073, -15.677, 48),
    (52, -9.875, 48),
    (51.927, -4.073, 48),
    (49.621, -4, 48),
    (47.318, -4.07, 48),
    (46.5, -15.75, 48),
    (45.942, -9.815, 48),
    (45.682, -4.07, 48),
    (39.568, -4.07, 48),
    (38.192, -9.815, 48),
    (34.875, -4, 48),
    (31.818, -4.07, 48),
    (31.558, -9.815, 48),
    (31, -15.75, 48),
    (30.442, -9.815, 48),
    (27.125, -4, 48),
    (24.068, -4.07, 48),
    (23.808, -9.815, 48),
    (23.25, -15.75, 48),
    (22.692, -9.815, 48),
    (22.432, -4.07, 48),
    (19.375, -4, 48),
    (16.318, -4.07, 48),
    (16.058, -9.815, 48),
    (15.5, -15.75, 48),
    (14.942, -9.815, 48),
    (14.682, -4.07, 48),
    (11.625, -4, 48),
    (8.568, -4.07, 48),
    (8.308, -9.815, 48),
    (7.192, -9.815, 48),
    (6.932, -4.07, 48),
    (0.073, -4.073, 48),
    (0, -9.875, 48),
    (-0.073, -15.677, 48),
    (-1.375, -15.75, 48),
    (-2.677, -15.677, 48),
    (-2.75, -5, -48),
    (-1.375, -15.75, -48),
    (-0.073, -15.677, -48),
    (0, -9.875, -48),
    (0.073, -4.073, -48),
    (3.504, -4, -48),
    (6.932, -4.07, -48),
    (7.192, -9.815, -48),
    (7.75, -15.75, -48),
    (8.568, -4.07, -48),
    (11.625, -4, -48),
    (14.682, -4.07, -48),
    (14.942, -9.815, -48),
    (15.5, -15.75, -48),
    (16.058, -9.815, -48),
    (16.318, -4.07, -48),
    (19.375, -4, -48),
    (22.432, -4.07, -48),
    (22.692, -9.815, -48),
    (23.25, -15.75, -48),
    (23.808, -9.815, -48),
    (24.068, -4.07, -48),
    (27.125, -4, -48),
    (30.182, -4.07, -48),
    (31, -15.75, -48),
    (31.558, -9.815, -48),
    (34.875, -4, -48),
    (38.75, -15.75, -48),
    (39.308, -9.815, -48),
    (39.568, -4.07, -48),
    (42.625, -4, -48),
    (45.682, -4.07, -48),
    (45.942, -9.815, -48),
    (46.5, -15.75, -48),
    (47.318, -4.07, -48),
    (51.927, -4.073, -48),
    (52, -9.875, -48),
    (52.073, -15.677, -48),
    (53.125, -15.75, -48),
    (54.177, -15.677, -48),
    (54.25, -7.875, -48),
    (54.177, -0.073, -48),
    (27.125, 0, -48),
    (0, 2.875, -48),
    (-2.75, 5.5, -45.75),
    (-1.375, 5.5, -48),
    (0, 5.5, -45.75),
    (0, 14.875, -48),
    (-0.073, 19.927, -48),
    (-1.375, 20, -48),
    (-2.75, 14.875, -48),
    (-1.375, 10, -48),
    (-1.375, 5.5, 48),
    (-2.677, 19.927, 48),
    (-1.375, 20, 48),
    (0, 14.875, 48),
    (-1.375, 10, 48),
    (-2.75, 14.875, 48),
    (-1.375, 18.5, -14),
    (0, 18.5, 0),
    (-1.375, 18.5, 14),
    (-2.75, 18.5, 0),
    (-2.75, -5, 48),
]))
fillet.Radius = 0.25

doc.recompute()
